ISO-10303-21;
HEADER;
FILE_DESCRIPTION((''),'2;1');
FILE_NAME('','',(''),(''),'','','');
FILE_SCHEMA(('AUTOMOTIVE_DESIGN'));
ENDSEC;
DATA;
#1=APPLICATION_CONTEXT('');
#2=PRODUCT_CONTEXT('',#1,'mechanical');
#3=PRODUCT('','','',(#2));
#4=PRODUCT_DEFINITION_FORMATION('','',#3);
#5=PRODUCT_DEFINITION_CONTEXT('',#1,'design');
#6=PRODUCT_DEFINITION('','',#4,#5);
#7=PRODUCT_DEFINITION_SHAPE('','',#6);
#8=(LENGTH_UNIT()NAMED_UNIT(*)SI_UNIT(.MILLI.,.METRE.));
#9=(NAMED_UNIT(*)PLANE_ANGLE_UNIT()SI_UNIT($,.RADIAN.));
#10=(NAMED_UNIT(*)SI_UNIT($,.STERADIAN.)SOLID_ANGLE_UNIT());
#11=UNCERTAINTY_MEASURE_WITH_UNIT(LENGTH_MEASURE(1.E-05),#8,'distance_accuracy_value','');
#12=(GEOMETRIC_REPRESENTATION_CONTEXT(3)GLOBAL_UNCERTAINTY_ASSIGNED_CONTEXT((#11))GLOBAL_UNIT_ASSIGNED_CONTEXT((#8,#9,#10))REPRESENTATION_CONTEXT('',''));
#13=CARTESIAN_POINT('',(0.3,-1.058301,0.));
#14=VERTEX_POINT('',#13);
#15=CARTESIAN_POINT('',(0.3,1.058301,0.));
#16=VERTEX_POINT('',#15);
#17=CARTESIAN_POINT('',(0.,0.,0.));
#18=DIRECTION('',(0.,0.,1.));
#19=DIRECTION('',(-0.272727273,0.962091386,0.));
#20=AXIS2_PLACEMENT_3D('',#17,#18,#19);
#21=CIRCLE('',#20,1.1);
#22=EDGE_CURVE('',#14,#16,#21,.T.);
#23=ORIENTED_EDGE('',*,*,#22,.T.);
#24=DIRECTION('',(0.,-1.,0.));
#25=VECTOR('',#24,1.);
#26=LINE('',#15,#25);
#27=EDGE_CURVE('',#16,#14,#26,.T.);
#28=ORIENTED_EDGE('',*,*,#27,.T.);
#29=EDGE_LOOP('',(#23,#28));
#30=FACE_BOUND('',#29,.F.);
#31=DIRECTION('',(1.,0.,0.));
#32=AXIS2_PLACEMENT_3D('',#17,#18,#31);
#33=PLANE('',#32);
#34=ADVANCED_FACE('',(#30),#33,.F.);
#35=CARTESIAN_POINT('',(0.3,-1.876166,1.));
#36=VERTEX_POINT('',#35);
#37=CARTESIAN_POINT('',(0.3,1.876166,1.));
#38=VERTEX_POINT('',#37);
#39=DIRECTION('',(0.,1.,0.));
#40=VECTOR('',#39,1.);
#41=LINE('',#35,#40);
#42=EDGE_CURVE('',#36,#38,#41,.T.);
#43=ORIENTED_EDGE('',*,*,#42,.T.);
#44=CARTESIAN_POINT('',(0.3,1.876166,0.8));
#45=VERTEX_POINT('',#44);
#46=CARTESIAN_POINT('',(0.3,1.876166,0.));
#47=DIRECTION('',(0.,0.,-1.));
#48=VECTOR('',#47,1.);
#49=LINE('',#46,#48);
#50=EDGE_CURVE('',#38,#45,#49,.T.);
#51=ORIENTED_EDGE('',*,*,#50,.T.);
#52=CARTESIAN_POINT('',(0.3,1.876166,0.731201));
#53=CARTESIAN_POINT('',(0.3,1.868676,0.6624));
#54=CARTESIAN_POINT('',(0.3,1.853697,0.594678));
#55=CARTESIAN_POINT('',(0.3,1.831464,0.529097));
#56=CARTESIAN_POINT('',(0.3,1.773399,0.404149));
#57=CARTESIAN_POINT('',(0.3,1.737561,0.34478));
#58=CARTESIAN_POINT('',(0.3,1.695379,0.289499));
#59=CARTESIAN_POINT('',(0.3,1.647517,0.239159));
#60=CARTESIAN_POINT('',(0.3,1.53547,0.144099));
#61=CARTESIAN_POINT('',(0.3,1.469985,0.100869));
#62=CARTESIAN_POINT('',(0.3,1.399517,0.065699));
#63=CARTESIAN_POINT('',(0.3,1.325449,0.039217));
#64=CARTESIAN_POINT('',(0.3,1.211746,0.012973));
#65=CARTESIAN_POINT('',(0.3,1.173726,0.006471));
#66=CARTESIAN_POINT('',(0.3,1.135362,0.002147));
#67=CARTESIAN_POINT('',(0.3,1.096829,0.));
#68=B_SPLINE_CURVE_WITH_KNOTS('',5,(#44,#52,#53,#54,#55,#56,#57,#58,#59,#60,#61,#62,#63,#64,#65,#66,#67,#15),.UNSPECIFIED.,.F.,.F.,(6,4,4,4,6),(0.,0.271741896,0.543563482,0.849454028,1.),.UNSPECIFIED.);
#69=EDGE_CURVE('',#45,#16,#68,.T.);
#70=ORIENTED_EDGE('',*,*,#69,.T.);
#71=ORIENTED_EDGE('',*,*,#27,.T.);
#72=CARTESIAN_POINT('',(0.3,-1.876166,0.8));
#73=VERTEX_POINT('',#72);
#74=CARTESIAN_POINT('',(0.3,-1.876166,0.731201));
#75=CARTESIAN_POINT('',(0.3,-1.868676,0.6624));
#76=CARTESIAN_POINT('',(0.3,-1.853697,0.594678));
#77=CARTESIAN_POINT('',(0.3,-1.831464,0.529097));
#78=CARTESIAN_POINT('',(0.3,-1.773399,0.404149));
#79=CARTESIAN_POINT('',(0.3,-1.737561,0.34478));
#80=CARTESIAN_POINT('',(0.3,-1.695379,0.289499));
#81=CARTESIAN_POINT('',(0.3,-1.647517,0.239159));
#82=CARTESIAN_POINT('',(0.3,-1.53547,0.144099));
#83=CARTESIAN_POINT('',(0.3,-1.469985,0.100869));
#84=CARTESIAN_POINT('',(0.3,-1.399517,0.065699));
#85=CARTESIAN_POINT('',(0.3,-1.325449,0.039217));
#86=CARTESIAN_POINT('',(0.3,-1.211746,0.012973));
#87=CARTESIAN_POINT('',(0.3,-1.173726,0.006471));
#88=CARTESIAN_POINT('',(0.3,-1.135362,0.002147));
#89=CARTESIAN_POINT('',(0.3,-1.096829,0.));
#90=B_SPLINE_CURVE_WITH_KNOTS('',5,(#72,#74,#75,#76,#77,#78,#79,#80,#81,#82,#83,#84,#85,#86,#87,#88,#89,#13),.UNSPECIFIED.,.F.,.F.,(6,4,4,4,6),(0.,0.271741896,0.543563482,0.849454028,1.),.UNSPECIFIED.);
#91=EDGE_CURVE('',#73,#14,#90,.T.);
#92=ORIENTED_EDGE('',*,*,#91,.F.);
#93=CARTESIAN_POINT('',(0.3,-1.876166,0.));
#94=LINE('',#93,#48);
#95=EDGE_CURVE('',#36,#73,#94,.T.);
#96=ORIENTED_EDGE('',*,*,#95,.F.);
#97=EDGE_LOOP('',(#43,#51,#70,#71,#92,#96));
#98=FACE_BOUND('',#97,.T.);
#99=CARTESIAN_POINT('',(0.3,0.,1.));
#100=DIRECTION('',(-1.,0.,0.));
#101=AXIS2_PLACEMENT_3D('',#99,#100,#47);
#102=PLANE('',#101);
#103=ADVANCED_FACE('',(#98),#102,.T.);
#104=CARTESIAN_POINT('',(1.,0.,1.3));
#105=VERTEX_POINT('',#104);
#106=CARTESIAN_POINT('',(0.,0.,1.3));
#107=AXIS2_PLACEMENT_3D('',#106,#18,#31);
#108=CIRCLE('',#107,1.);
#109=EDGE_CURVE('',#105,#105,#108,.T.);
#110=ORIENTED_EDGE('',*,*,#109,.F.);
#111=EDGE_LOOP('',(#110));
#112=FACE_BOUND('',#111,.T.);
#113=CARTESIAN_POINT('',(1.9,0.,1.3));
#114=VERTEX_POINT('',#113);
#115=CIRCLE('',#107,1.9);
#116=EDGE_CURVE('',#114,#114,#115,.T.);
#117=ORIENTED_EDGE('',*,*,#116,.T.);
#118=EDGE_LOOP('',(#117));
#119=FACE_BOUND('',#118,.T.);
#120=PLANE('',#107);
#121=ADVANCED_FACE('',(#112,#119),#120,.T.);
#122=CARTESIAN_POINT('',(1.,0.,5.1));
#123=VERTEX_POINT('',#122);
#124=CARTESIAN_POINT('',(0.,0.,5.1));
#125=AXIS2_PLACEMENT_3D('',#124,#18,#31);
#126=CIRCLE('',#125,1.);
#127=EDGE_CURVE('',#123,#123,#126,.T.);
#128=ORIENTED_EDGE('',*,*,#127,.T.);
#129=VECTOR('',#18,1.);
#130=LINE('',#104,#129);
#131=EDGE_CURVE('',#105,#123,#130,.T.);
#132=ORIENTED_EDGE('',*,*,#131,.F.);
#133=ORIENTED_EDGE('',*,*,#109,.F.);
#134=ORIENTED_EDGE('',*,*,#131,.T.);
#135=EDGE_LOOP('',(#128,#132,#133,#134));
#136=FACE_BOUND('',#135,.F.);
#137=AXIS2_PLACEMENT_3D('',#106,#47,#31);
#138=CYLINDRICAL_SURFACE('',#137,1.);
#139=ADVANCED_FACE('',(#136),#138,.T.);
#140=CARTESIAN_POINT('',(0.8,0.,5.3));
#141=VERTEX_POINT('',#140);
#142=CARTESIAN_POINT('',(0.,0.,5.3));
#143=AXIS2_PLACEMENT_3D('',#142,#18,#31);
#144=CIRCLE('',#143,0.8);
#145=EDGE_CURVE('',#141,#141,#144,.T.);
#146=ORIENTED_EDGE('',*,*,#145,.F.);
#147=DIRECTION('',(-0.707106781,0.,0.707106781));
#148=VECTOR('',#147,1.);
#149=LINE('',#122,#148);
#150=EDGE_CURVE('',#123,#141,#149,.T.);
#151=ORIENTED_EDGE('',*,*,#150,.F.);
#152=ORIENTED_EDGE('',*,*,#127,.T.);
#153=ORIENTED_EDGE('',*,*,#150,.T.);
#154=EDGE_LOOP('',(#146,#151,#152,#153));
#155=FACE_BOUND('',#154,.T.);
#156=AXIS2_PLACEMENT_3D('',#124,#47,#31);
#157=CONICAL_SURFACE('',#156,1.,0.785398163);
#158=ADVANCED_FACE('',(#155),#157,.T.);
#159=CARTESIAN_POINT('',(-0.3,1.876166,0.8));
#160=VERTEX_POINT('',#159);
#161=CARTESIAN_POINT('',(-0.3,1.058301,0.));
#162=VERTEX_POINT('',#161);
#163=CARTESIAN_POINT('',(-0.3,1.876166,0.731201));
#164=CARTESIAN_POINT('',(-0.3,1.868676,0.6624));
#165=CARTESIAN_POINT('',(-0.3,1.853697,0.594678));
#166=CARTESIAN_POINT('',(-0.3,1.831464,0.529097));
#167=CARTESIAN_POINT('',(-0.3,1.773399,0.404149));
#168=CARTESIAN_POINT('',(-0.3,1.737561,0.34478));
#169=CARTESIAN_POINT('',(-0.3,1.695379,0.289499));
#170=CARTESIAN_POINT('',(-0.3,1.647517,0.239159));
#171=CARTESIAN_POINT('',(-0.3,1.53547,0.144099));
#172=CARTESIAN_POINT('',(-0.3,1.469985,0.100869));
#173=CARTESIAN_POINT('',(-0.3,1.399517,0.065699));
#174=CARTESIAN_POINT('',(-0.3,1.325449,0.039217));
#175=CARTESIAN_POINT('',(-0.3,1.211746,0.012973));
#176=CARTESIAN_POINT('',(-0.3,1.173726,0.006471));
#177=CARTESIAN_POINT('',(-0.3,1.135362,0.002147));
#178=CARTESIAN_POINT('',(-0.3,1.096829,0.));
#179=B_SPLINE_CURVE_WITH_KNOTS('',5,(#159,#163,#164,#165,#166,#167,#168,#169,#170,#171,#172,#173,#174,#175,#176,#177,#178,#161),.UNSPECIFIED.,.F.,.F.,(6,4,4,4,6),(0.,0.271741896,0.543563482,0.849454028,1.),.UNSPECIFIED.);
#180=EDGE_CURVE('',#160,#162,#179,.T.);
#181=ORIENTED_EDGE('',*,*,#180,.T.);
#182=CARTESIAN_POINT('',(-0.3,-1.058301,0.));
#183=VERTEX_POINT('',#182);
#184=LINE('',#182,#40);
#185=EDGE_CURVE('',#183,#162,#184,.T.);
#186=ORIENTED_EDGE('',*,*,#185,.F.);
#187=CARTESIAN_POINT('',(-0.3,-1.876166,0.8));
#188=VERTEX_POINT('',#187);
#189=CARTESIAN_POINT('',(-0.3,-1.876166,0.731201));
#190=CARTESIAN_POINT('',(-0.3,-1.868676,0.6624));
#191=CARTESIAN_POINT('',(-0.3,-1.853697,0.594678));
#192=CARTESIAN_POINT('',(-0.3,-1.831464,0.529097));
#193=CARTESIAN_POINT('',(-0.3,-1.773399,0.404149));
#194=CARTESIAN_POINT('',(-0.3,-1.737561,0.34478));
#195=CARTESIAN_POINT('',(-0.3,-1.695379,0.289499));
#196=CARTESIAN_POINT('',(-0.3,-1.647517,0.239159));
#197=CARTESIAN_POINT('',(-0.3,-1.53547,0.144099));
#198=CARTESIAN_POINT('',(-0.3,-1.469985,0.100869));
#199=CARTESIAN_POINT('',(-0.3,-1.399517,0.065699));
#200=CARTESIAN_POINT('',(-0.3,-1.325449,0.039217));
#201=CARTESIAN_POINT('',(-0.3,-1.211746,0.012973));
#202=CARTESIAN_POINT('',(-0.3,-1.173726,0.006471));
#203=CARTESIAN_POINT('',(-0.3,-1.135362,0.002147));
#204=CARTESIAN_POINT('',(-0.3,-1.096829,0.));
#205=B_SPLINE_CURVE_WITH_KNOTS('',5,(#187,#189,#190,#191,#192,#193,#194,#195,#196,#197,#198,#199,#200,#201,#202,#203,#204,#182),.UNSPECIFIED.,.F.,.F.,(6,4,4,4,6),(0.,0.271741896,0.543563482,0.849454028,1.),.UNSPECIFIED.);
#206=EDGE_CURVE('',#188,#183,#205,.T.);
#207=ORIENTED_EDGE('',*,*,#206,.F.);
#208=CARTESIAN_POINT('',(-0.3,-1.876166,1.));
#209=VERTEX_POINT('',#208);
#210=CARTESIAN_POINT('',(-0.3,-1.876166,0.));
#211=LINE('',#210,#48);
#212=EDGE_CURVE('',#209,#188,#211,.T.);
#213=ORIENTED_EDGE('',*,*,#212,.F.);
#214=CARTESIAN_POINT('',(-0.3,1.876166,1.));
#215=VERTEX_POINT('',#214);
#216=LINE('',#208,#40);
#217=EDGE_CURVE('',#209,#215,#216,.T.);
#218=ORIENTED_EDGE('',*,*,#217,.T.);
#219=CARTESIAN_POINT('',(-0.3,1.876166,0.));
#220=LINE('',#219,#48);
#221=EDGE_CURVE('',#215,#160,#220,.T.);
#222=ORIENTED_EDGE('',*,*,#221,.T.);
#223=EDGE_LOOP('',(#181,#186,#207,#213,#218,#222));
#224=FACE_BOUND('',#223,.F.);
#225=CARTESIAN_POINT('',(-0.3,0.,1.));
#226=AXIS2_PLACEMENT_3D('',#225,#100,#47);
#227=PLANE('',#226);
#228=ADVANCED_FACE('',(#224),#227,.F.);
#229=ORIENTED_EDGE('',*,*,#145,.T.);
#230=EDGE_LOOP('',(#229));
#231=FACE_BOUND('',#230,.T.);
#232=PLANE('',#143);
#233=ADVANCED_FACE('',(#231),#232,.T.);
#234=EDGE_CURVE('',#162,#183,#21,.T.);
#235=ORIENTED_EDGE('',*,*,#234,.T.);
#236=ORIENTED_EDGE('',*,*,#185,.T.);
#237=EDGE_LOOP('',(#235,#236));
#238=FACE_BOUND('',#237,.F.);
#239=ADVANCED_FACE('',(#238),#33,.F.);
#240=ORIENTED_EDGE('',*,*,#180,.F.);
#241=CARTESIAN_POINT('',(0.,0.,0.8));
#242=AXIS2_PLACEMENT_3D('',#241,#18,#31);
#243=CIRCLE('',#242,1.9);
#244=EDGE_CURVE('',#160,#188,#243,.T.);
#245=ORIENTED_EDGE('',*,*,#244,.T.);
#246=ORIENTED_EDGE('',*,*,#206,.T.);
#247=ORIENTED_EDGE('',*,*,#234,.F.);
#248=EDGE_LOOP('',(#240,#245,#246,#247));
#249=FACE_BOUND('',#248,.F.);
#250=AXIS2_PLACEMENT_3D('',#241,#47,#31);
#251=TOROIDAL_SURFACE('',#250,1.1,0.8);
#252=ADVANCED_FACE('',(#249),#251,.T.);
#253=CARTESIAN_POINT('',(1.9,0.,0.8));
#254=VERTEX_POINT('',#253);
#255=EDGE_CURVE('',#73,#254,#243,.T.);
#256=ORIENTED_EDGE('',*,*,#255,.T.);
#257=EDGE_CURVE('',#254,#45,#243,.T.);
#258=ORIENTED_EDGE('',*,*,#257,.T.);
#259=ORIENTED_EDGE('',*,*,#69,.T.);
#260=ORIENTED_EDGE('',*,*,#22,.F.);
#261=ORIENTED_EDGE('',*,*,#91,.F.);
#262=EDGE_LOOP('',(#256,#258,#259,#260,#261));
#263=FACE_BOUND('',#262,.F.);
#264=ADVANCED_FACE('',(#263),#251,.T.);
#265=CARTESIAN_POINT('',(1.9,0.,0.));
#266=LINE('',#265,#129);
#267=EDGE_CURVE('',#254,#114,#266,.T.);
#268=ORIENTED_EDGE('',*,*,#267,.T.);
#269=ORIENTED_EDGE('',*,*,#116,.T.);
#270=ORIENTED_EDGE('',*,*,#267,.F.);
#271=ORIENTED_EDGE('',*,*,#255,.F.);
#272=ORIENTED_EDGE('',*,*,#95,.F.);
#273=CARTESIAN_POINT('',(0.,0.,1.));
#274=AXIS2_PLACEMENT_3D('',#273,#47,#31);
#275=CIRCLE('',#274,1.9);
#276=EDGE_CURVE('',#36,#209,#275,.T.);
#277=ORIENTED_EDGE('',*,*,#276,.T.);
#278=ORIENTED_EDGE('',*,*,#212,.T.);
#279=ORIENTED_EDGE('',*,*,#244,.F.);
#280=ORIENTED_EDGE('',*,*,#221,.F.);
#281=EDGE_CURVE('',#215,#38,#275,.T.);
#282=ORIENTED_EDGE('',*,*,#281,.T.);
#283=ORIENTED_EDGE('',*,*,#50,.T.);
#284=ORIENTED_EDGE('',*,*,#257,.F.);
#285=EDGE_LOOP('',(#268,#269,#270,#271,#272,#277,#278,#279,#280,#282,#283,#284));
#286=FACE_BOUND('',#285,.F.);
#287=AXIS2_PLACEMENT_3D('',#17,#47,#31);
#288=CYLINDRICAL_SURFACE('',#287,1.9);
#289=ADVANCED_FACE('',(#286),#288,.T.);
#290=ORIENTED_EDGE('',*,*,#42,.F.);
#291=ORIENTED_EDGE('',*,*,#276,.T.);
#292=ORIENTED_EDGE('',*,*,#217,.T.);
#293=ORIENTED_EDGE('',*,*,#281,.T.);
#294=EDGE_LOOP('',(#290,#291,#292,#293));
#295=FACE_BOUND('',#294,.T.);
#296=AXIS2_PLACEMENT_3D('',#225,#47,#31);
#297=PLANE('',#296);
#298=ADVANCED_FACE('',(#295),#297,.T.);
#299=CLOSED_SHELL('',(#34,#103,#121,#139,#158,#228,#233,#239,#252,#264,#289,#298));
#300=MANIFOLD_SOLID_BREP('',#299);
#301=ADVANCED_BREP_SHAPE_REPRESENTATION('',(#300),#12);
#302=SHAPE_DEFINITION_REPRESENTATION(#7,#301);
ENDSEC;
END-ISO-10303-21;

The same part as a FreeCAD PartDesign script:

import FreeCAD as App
import Part
import Sketcher


def edges_at(feature, points):
    """Names of the edges that pass closest to the given points."""
    edges = feature.Shape.Edges
    near = lambda p: min(range(len(edges)), key=lambda i: edges[i].distToShape(Part.Vertex(*p))[0])
    return sorted({f"Edge{near(p) + 1}" for p in points})

doc = App.newDocument("Part")
body = doc.addObject("PartDesign::Body", "Body")

# Sketch on XY plane
sketch1 = doc.addObject("Sketcher::SketchObject", "Sketch")
body.addObject(sketch1)
sketch1.AttachmentSupport = (doc.XY_Plane, [""])
sketch1.MapMode = "FlatFace"
sketch1.addGeometry(Part.Circle(App.Vector(0, 0, 0), App.Vector(0, 0, 1), 1.9), False)
sketch1.addConstraint([
    Sketcher.Constraint("Coincident", 0, 3, -1, 1),
    Sketcher.Constraint("Diameter", 0, 3.8),
])
pad1 = doc.addObject("PartDesign::Pad", "Pad")
body.addObject(pad1)
pad1.Profile = sketch1
pad1.Length = 1.3
doc.recompute()

fillet = doc.addObject("PartDesign::Fillet", "Fillet")
body.addObject(fillet)
fillet.Base = (pad1, edges_at(pad1, [(-1.9, 0, 0)]))
fillet.Radius = 0.8

# Sketch on XY plane
sketch2 = doc.addObject("Sketcher::SketchObject", "Sketch001")
body.addObject(sketch2)
sketch2.AttachmentSupport = (doc.XY_Plane, [""])
sketch2.MapMode = "FlatFace"
sketch2.AttachmentOffset = App.Placement(App.Vector(0, 0, 1.3), App.Rotation())
sketch2.addGeometry(Part.Circle(App.Vector(0, 0, 0), App.Vector(0, 0, 1), 1), False)
sketch2.addConstraint([
    Sketcher.Constraint("Coincident", 0, 3, -1, 1),
    Sketcher.Constraint("Diameter", 0, 2.0),
])
pad2 = doc.addObject("PartDesign::Pad", "Pad001")
body.addObject(pad2)
pad2.Profile = sketch2
pad2.Length = 4
doc.recompute()

chamfer = doc.addObject("PartDesign::Chamfer", "Chamfer")
body.addObject(chamfer)
chamfer.Base = (pad2, edges_at(pad2, [(-1, 0, 5.3)]))
chamfer.Size = 0.2

# Sketch on XZ plane
sketch3 = doc.addObject("Sketcher::SketchObject", "Sketch002")
body.addObject(sketch3)
sketch3.AttachmentSupport = (doc.XZ_Plane, [""])
sketch3.MapMode = "FlatFace"
sketch3.addGeometry([
    Part.LineSegment(App.Vector(-0.3, 0, 0), App.Vector(-0.3, 1, 0)),
    Part.LineSegment(App.Vector(-0.3, 1, 0), App.Vector(0.3, 1, 0)),
    Part.LineSegment(App.Vector(0.3, 1, 0), App.Vector(0.3, 0, 0)),
    Part.LineSegment(App.Vector(0.3, 0, 0), App.Vector(-0.3, 0, 0)),
], False)
sketch3.addConstraint([
    Sketcher.Constraint("Coincident", 0, 2, 1, 1),
    Sketcher.Constraint("Coincident", 1, 2, 2, 1),
    Sketcher.Constraint("Coincident", 2, 2, 3, 1),
    Sketcher.Constraint("Coincident", 3, 2, 0, 1),
    Sketcher.Constraint("Vertical", 0),
    Sketcher.Constraint("Horizontal", 1),
    Sketcher.Constraint("Vertical", 2),
    Sketcher.Constraint("Horizontal", 3),
    Sketcher.Constraint("Symmetric", 2, 2, 3, 2, -1, 1),
    Sketcher.Constraint("DistanceY", 0, 1, 0, 2, 1.0),
    Sketcher.Constraint("DistanceX", 1, 1, 1, 2, 0.6),
])
pocket1 = doc.addObject("PartDesign::Pocket", "Pocket")
body.addObject(pocket1)
pocket1.Profile = sketch3
pocket1.Type = "ThroughAll"
pocket1.Midplane = True

doc.recompute()
